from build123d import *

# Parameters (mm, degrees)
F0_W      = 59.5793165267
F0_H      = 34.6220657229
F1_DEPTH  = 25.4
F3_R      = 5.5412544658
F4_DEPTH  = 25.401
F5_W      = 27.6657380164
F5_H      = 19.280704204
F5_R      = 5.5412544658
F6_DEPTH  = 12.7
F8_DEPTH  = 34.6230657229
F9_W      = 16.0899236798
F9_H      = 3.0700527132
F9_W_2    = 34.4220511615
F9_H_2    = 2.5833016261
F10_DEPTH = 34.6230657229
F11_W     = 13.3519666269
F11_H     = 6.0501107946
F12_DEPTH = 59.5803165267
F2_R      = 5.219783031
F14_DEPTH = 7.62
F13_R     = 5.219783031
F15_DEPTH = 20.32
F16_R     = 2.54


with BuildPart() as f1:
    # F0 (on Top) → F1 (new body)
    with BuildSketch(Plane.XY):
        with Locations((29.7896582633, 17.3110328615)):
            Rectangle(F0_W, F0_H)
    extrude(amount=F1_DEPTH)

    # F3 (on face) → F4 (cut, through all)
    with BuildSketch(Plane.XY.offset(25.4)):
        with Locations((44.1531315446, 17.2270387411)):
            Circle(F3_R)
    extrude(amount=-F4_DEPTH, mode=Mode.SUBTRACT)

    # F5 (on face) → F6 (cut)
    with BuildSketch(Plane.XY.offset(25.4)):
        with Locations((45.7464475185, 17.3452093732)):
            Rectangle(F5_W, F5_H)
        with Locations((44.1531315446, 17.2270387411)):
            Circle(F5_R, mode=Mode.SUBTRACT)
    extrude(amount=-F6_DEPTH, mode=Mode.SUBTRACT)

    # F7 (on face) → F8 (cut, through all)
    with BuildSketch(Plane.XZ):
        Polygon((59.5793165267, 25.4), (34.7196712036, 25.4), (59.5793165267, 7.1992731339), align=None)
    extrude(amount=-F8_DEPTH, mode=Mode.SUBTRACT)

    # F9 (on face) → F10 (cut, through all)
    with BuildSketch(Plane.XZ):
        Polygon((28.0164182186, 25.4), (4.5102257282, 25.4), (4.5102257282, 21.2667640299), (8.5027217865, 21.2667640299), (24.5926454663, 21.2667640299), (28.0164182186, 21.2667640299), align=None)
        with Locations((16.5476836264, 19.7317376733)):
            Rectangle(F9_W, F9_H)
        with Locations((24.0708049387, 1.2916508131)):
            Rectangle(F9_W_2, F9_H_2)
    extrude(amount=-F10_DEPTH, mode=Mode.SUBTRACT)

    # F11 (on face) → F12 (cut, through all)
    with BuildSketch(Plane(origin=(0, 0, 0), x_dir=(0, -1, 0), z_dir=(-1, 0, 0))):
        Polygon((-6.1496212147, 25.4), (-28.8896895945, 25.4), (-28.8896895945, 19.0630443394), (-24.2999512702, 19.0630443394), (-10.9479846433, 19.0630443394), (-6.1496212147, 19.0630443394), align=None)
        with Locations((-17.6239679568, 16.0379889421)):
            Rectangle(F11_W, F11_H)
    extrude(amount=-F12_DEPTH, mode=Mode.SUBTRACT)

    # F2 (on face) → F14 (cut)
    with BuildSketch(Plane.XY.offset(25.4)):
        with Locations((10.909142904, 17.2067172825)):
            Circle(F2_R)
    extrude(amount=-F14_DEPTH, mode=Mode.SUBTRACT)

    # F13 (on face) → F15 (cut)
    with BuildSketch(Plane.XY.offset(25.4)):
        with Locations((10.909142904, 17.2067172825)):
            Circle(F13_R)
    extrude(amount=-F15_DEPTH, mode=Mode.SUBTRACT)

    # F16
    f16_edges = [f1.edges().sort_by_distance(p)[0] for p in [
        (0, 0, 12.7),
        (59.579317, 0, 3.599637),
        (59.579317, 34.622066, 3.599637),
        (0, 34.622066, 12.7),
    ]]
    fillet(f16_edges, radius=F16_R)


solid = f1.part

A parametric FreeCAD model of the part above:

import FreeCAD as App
import Part
import Sketcher
Q = App.Units.Quantity


def edges_at(feature, points):
    """Names of the edges that pass closest to the given points."""
    edges = feature.Shape.Edges
    near = lambda p: min(range(len(edges)), key=lambda i: edges[i].distToShape(Part.Vertex(*p))[0])
    return sorted({f"Edge{near(p) + 1}" for p in points})


def add_polygon(sketch, points):
    """Adds a closed chain of lines whose ends are joined by coincident constraints."""
    first, n = sketch.GeometryCount, len(points)
    for a, b in zip(points, points[1:] + points[:1]):
        sketch.addGeometry(Part.LineSegment(App.Vector(*a, 0), App.Vector(*b, 0)), False)
    for i in range(n):
        sketch.addConstraint(Sketcher.Constraint("Coincident", first + i, 2, first + (i + 1) % n, 1))

doc = App.newDocument("Part")
body = doc.addObject("PartDesign::Body", "Body")

# Sketch on XY plane
sketch1 = doc.addObject("Sketcher::SketchObject", "Sketch")
body.addObject(sketch1)
sketch1.AttachmentSupport = (doc.XY_Plane, [""])
sketch1.MapMode = "FlatFace"
add_polygon(sketch1, [(0, 35), (0, 0), (60, 0), (60, 35)])  # lines 0-3
sketch1.addConstraint([
    Sketcher.Constraint("Vertical", 0),
    Sketcher.Constraint("Horizontal", 1),
    Sketcher.Constraint("Vertical", 2),
    Sketcher.Constraint("Horizontal", 3),
    Sketcher.Constraint("Coincident", 0, 2, -1, 1),
    Sketcher.Constraint("DistanceX", 1, 1, 1, 2, 59.579317),
    Sketcher.Constraint("DistanceY", 0, 2, 0, 1, 34.622066),
])
pad1 = doc.addObject("PartDesign::Pad", "Pad")
body.addObject(pad1)
pad1.Profile = sketch1
pad1.Length = Q("1 in")

# Sketch on XY plane
sketch2 = doc.addObject("Sketcher::SketchObject", "Sketch001")
body.addObject(sketch2)
sketch2.AttachmentSupport = (doc.XY_Plane, [""])
sketch2.MapMode = "FlatFace"
sketch2.AttachmentOffset = App.Placement(App.Vector(0, 0, 1 * 25.4), App.Rotation())
sketch2.addGeometry(Part.Circle(App.Vector(44, 17, 0), App.Vector(0, 0, 1), 6), False)
sketch2.addConstraint([
    Sketcher.Constraint("Diameter", 0, 11.082509),
    Sketcher.Constraint("DistanceX", -1, 1, 0, 3, 44.153132),
    Sketcher.Constraint("DistanceY", -1, 1, 0, 3, 17.227039),
])
pocket1 = doc.addObject("PartDesign::Pocket", "Pocket")
body.addObject(pocket1)
pocket1.Profile = sketch2
pocket1.Type = "ThroughAll"

# Sketch on XY plane
sketch3 = doc.addObject("Sketcher::SketchObject", "Sketch002")
body.addObject(sketch3)
sketch3.AttachmentSupport = (doc.XY_Plane, [""])
sketch3.MapMode = "FlatFace"
sketch3.AttachmentOffset = App.Placement(App.Vector(0, 0, 1 * 25.4), App.Rotation())
add_polygon(sketch3, [(32, 27), (32, 8), (60, 8), (60, 27)])  # lines 0-3
sketch3.addGeometry(Part.Circle(App.Vector(44, 17, 0), App.Vector(0, 0, 1), 6), False)  # 4
sketch3.addConstraint([
    Sketcher.Constraint("Vertical", 0),
    Sketcher.Constraint("Horizontal", 1),
    Sketcher.Constraint("Vertical", 2),
    Sketcher.Constraint("Horizontal", 3),
    Sketcher.Constraint("Diameter", 4, 11.082509),
    Sketcher.Constraint("DistanceX", 1, 1, 1, 2, 27.665738),
    Sketcher.Constraint("DistanceY", 0, 2, 0, 1, 19.280704),
    Sketcher.Constraint("DistanceX", -1, 1, 4, 3, 44.153132),
    Sketcher.Constraint("DistanceY", -1, 1, 4, 3, 17.227039),
    Sketcher.Constraint("DistanceX", -1, 1, 0, 2, 31.913579),
    Sketcher.Constraint("DistanceY", -1, 1, 2, 2, 26.985561),
])
pocket2 = doc.addObject("PartDesign::Pocket", "Pocket001")
body.addObject(pocket2)
pocket2.Profile = sketch3
pocket2.Length = Q("0.5 in")

# Sketch on XZ plane
sketch4 = doc.addObject("Sketcher::SketchObject", "Sketch003")
body.addObject(sketch4)
sketch4.AttachmentSupport = (doc.XZ_Plane, [""])
sketch4.MapMode = "FlatFace"
add_polygon(sketch4, [(60, 25), (35, 25), (60, 7)])  # lines 0-2
sketch4.addConstraint([
    Sketcher.Constraint("Horizontal", 0),
    Sketcher.Constraint("Vertical", 2),
    Sketcher.Constraint("DistanceY", -1, 1, 0, 2, Q("1 in")),
    Sketcher.Constraint("Distance", 1, Q("1.213 in")),
    Sketcher.Constraint("DistanceX", 0, 2, 0, 1, 24.859645),
    Sketcher.Constraint("DistanceX", -1, 1, 0, 2, 34.719671),
])
pocket3 = doc.addObject("PartDesign::Pocket", "Pocket002")
body.addObject(pocket3)
pocket3.Profile = sketch4
pocket3.Type = "ThroughAll"

# Sketch on XZ plane
sketch5 = doc.addObject("Sketcher::SketchObject", "Sketch004")
body.addObject(sketch5)
sketch5.AttachmentSupport = (doc.XZ_Plane, [""])
sketch5.MapMode = "FlatFace"
add_polygon(sketch5, [(28, 25.4), (4.5, 25.4), (4.5, 21.3), (8.5, 21.3), (8.5, 18.2), (24.6, 18.2), (24.6, 21.3), (28, 21.3)])  # lines 0-7
add_polygon(sketch5, [(6.9, 2.6), (6.9, 0), (41.3, 0), (41.3, 2.6)])  # lines 8-11
sketch5.addConstraint([
    Sketcher.Constraint("Horizontal", 0),
    Sketcher.Constraint("Vertical", 1),
    Sketcher.Constraint("Horizontal", 2),
    Sketcher.Constraint("Vertical", 3),
    Sketcher.Constraint("Horizontal", 4),
    Sketcher.Constraint("Vertical", 5),
    Sketcher.Constraint("Horizontal", 6),
    Sketcher.Constraint("Vertical", 7),
    Sketcher.Constraint("Vertical", 8),
    Sketcher.Constraint("Horizontal", 9),
    Sketcher.Constraint("Vertical", 10),
    Sketcher.Constraint("Horizontal", 11),
    Sketcher.Constraint("PointOnObject", 8, 2, -1),
    Sketcher.Constraint("Horizontal", 2, 2, 5, 2),
    Sketcher.Constraint("DistanceY", -1, 1, 0, 2, Q("1 in")),
    Sketcher.Constraint("DistanceY", 8, 2, 8, 1, 2.583302),
    Sketcher.Constraint("DistanceX", 9, 1, 9, 2, 34.422051),
    Sketcher.Constraint("DistanceX", 0, 2, 0, 1, 23.506192),
    Sketcher.Constraint("DistanceX", 2, 1, 2, 2, 3.992496),
    Sketcher.Constraint("DistanceX", 4, 1, 4, 2, 16.089924),
    Sketcher.Constraint("DistanceY", 1, 2, 1, 1, 4.133236),
    Sketcher.Constraint("DistanceY", 3, 2, 3, 1, 3.070053),
    Sketcher.Constraint("DistanceX", -1, 1, 2, 2, 8.502722),
    Sketcher.Constraint("DistanceX", -1, 1, 8, 2, 6.859779),
])
pocket4 = doc.addObject("PartDesign::Pocket", "Pocket003")
body.addObject(pocket4)
pocket4.Profile = sketch5
pocket4.Type = "ThroughAll"

# Sketch on YZ plane
sketch6 = doc.addObject("Sketcher::SketchObject", "Sketch005")
body.addObject(sketch6)
sketch6.AttachmentSupport = (doc.YZ_Plane, [""])
sketch6.MapMode = "FlatFace"
add_polygon(sketch6, [(6.1, 25.4), (28.9, 25.4), (28.9, 19.1), (24.3, 19.1), (24.3, 13), (10.9, 13), (10.9, 19.1), (6.1, 19.1)])  # lines 0-7
sketch6.addConstraint([
    Sketcher.Constraint("Horizontal", 0),
    Sketcher.Constraint("Vertical", 1),
    Sketcher.Constraint("Horizontal", 2),
    Sketcher.Constraint("Vertical", 3),
    Sketcher.Constraint("Horizontal", 4),
    Sketcher.Constraint("Vertical", 5),
    Sketcher.Constraint("Horizontal", 6),
    Sketcher.Constraint("Vertical", 7),
    Sketcher.Constraint("Horizontal", 2, 2, 5, 2),
    Sketcher.Constraint("DistanceY", -1, 1, 0, 2, Q("1 in")),
    Sketcher.Constraint("DistanceX", 0, 1, 0, 2, 22.740068),
    Sketcher.Constraint("DistanceX", 2, 2, 2, 1, 4.589738),
    Sketcher.Constraint("DistanceY", 3, 2, 3, 1, 6.050111),
    Sketcher.Constraint("DistanceX", 4, 2, 4, 1, 13.351967),
    Sketcher.Constraint("DistanceY", 1, 2, 1, 1, 6.336956),
    Sketcher.Constraint("DistanceX", -1, 1, 0, 2, 28.88969),
])
pocket5 = doc.addObject("PartDesign::Pocket", "Pocket004")
body.addObject(pocket5)
pocket5.Profile = sketch6
pocket5.Type = "ThroughAll"
pocket5.Reversed = True

# Sketch on XY plane
sketch7 = doc.addObject("Sketcher::SketchObject", "Sketch006")
body.addObject(sketch7)
sketch7.AttachmentSupport = (doc.XY_Plane, [""])
sketch7.MapMode = "FlatFace"
sketch7.AttachmentOffset = App.Placement(App.Vector(0, 0, 1 * 25.4), App.Rotation())
sketch7.addGeometry(Part.Circle(App.Vector(11, 17, 0), App.Vector(0, 0, 1), 5), False)
sketch7.addConstraint([
    Sketcher.Constraint("Diameter", 0, 10.439566),
    Sketcher.Constraint("DistanceX", -1, 1, 0, 3, 10.909143),
    Sketcher.Constraint("DistanceY", -1, 1, 0, 3, 17.206717),
])
pocket6 = doc.addObject("PartDesign::Pocket", "Pocket005")
body.addObject(pocket6)
pocket6.Profile = sketch7
pocket6.Length = Q("0.3 in")

# Sketch on XY plane
sketch8 = doc.addObject("Sketcher::SketchObject", "Sketch007")
body.addObject(sketch8)
sketch8.AttachmentSupport = (doc.XY_Plane, [""])
sketch8.MapMode = "FlatFace"
sketch8.AttachmentOffset = App.Placement(App.Vector(0, 0, 1 * 25.4), App.Rotation())
sketch8.addGeometry(Part.Circle(App.Vector(11, 17, 0), App.Vector(0, 0, 1), 5), False)
sketch8.addConstraint([
    Sketcher.Constraint("Diameter", 0, 10.439566),
    Sketcher.Constraint("DistanceX", -1, 1, 0, 3, 10.909143),
    Sketcher.Constraint("DistanceY", -1, 1, 0, 3, 17.206717),
])
pocket7 = doc.addObject("PartDesign::Pocket", "Pocket006")
body.addObject(pocket7)
pocket7.Profile = sketch8
pocket7.Length = Q("0.8 in")
doc.recompute()

fillet = doc.addObject("PartDesign::Fillet", "Fillet")
body.addObject(fillet)
fillet.Base = (pocket7, edges_at(pocket7, [
    (0, 0, 12.7),
    (59.579, 0, 3.6),
    (59.579, 34.622, 3.6),
    (0, 34.622, 12.7),
]))
fillet.Radius = Q("0.1 in")

doc.recompute()
